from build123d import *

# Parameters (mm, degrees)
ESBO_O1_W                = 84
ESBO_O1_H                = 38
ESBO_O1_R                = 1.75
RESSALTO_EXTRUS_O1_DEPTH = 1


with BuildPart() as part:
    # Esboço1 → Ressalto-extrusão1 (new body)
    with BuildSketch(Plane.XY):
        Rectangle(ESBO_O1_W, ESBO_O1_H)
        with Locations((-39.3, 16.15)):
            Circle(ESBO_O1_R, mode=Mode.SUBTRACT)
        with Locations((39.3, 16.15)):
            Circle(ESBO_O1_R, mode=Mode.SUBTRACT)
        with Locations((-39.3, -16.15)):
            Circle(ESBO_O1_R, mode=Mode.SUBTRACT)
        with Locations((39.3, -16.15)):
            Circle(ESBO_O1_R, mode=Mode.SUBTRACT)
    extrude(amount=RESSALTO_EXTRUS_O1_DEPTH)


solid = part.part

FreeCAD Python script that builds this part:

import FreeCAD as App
import Part
import Sketcher

V = App.Vector


def add_polygon(sketch, points):
    """Adds a closed chain of lines whose ends are joined by coincident constraints."""
    first, n = sketch.GeometryCount, len(points)
    for a, b in zip(points, points[1:] + points[:1]):
        sketch.addGeometry(Part.LineSegment(App.Vector(*a, 0), App.Vector(*b, 0)), False)
    for i in range(n):
        sketch.addConstraint(Sketcher.Constraint("Coincident", first + i, 2, first + (i + 1) % n, 1))

doc = App.newDocument("Part")
body = doc.addObject("PartDesign::Body", "Body")

# Sketch on XY plane
sketch1 = body.newObject("Sketcher::SketchObject", "Sketch")
sketch1.AttachmentSupport = (doc.getObject("XY_Plane"), [""])
sketch1.MapMode = "FlatFace"
add_polygon(sketch1, [(-42, 19), (-42, -19), (42, -19), (42, 19)])  # lines 0-3
sketch1.addGeometry(Part.Circle(V(-39.3, -16.1, 0), V(0, 0, 1), 1.8), False)  # 4
sketch1.addGeometry(Part.Circle(V(39.3, -16.1, 0), V(0, 0, 1), 1.8), False)  # 5
sketch1.addGeometry(Part.Circle(V(-39.3, 16.1, 0), V(0, 0, 1), 1.8), False)  # 6
sketch1.addGeometry(Part.Circle(V(39.3, 16.1, 0), V(0, 0, 1), 1.8), False)  # 7
sketch1.addConstraint([
    Sketcher.Constraint("Vertical", 0),
    Sketcher.Constraint("Horizontal", 1),
    Sketcher.Constraint("Vertical", 2),
    Sketcher.Constraint("Horizontal", 3),
    Sketcher.Constraint("Equal", 4, 5),
    Sketcher.Constraint("Equal", 5, 6),
    Sketcher.Constraint("Equal", 6, 7),
    Sketcher.Constraint("Symmetric", 5, 3, 6, 3, -1, 1),
    Sketcher.Constraint("Symmetric", 4, 3, 7, 3, -1, 1),
    Sketcher.Constraint("Symmetric", 0, 2, 2, 2, -1, 1),
    Sketcher.Constraint("Symmetric", 4, 3, 5, 3, -2),
    Sketcher.Constraint("Diameter", 4, 3.5),
    Sketcher.Constraint("DistanceX", 1, 1, 1, 2, 84.0),
    Sketcher.Constraint("DistanceY", 0, 2, 0, 1, 38.0),
    Sketcher.Constraint("DistanceX", 4, 3, -1, 1, 39.3),
    Sketcher.Constraint("DistanceY", 4, 3, 6, 3, 32.3),
])
pad1 = body.newObject("PartDesign::Pad", "Pad")
pad1.Profile = sketch1
pad1.Length = 1

doc.recompute()
